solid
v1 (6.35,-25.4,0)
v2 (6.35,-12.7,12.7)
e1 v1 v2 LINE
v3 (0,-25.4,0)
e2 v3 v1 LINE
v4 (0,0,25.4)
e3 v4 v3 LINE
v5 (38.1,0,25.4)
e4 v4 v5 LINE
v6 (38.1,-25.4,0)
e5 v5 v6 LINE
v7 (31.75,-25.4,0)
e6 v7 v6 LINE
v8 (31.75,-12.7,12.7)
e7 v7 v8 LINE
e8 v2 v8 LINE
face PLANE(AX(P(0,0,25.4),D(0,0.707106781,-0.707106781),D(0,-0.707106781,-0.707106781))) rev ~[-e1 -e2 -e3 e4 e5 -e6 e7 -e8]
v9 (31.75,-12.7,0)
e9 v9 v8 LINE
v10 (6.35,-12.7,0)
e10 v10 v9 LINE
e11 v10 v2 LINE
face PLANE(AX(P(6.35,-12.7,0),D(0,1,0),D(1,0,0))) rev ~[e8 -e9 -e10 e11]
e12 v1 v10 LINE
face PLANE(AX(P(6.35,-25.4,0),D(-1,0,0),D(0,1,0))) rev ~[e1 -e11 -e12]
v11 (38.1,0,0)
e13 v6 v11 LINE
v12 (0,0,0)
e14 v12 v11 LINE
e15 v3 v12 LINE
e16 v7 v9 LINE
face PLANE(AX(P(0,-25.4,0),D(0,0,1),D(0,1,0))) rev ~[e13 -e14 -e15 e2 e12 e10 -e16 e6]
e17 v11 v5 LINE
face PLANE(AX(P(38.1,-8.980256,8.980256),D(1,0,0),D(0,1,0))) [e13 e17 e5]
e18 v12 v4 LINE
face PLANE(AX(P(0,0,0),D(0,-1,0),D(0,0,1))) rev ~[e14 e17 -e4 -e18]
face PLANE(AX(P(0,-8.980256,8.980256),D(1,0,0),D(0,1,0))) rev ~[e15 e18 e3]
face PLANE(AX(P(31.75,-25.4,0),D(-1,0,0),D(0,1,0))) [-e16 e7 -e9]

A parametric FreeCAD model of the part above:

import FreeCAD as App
import Part
import Sketcher
Q = App.Units.Quantity


def add_polygon(sketch, points):
    """Adds a closed chain of lines whose ends are joined by coincident constraints."""
    first, n = sketch.GeometryCount, len(points)
    for a, b in zip(points, points[1:] + points[:1]):
        sketch.addGeometry(Part.LineSegment(App.Vector(*a, 0), App.Vector(*b, 0)), False)
    for i in range(n):
        sketch.addConstraint(Sketcher.Constraint("Coincident", first + i, 2, first + (i + 1) % n, 1))

doc = App.newDocument("Part")
body = doc.addObject("PartDesign::Body", "Body")

sketch1 = body.newObject("Sketcher::SketchObject", "Sketch")
sketch1.AttachmentSupport = (doc.getObject("YZ_Plane"), [""])
sketch1.MapMode = "FlatFace"
add_polygon(sketch1, [(-25.4, 0), (0, 0), (0, 25.4)])
sketch1.addConstraint([
    Sketcher.Constraint("Horizontal", 0),
    Sketcher.Constraint("Vertical", 1),
    Sketcher.Constraint("Coincident", 0, 2, -1, 1),
    Sketcher.Constraint("Equal", 0, 1),
    Sketcher.Constraint("DistanceX", 0, 1, 0, 2, Q("1 in")),
])
pad1 = body.newObject("PartDesign::Pad", "Pad")
pad1.Profile = sketch1
pad1.Length = Q("1.5 in")

sketch2 = body.newObject("Sketcher::SketchObject", "Sketch001")
sketch2.AttachmentSupport = (doc.getObject("XY_Plane"), [""])
sketch2.MapMode = "FlatFace"
add_polygon(sketch2, [(6.35, -12.7), (6.35, -25.4), (31.75, -25.4), (31.75, -12.7)])
sketch2.addConstraint([
    Sketcher.Constraint("Vertical", 0),
    Sketcher.Constraint("Horizontal", 1),
    Sketcher.Constraint("Vertical", 2),
    Sketcher.Constraint("Horizontal", 3),
    Sketcher.Constraint("DistanceX", 1, 1, 1, 2, Q("1 in")),
    Sketcher.Constraint("DistanceY", 0, 2, 0, 1, Q("0.5 in")),
    Sketcher.Constraint("DistanceY", 0, 2, -1, 1, Q("1 in")),
    Sketcher.Constraint("DistanceX", -1, 1, 0, 2, Q("0.25 in")),
])
pocket1 = body.newObject("PartDesign::Pocket", "Pocket")
pocket1.Profile = sketch2
pocket1.Length = Q("0.5 in")
pocket1.Reversed = True

doc.recompute()
